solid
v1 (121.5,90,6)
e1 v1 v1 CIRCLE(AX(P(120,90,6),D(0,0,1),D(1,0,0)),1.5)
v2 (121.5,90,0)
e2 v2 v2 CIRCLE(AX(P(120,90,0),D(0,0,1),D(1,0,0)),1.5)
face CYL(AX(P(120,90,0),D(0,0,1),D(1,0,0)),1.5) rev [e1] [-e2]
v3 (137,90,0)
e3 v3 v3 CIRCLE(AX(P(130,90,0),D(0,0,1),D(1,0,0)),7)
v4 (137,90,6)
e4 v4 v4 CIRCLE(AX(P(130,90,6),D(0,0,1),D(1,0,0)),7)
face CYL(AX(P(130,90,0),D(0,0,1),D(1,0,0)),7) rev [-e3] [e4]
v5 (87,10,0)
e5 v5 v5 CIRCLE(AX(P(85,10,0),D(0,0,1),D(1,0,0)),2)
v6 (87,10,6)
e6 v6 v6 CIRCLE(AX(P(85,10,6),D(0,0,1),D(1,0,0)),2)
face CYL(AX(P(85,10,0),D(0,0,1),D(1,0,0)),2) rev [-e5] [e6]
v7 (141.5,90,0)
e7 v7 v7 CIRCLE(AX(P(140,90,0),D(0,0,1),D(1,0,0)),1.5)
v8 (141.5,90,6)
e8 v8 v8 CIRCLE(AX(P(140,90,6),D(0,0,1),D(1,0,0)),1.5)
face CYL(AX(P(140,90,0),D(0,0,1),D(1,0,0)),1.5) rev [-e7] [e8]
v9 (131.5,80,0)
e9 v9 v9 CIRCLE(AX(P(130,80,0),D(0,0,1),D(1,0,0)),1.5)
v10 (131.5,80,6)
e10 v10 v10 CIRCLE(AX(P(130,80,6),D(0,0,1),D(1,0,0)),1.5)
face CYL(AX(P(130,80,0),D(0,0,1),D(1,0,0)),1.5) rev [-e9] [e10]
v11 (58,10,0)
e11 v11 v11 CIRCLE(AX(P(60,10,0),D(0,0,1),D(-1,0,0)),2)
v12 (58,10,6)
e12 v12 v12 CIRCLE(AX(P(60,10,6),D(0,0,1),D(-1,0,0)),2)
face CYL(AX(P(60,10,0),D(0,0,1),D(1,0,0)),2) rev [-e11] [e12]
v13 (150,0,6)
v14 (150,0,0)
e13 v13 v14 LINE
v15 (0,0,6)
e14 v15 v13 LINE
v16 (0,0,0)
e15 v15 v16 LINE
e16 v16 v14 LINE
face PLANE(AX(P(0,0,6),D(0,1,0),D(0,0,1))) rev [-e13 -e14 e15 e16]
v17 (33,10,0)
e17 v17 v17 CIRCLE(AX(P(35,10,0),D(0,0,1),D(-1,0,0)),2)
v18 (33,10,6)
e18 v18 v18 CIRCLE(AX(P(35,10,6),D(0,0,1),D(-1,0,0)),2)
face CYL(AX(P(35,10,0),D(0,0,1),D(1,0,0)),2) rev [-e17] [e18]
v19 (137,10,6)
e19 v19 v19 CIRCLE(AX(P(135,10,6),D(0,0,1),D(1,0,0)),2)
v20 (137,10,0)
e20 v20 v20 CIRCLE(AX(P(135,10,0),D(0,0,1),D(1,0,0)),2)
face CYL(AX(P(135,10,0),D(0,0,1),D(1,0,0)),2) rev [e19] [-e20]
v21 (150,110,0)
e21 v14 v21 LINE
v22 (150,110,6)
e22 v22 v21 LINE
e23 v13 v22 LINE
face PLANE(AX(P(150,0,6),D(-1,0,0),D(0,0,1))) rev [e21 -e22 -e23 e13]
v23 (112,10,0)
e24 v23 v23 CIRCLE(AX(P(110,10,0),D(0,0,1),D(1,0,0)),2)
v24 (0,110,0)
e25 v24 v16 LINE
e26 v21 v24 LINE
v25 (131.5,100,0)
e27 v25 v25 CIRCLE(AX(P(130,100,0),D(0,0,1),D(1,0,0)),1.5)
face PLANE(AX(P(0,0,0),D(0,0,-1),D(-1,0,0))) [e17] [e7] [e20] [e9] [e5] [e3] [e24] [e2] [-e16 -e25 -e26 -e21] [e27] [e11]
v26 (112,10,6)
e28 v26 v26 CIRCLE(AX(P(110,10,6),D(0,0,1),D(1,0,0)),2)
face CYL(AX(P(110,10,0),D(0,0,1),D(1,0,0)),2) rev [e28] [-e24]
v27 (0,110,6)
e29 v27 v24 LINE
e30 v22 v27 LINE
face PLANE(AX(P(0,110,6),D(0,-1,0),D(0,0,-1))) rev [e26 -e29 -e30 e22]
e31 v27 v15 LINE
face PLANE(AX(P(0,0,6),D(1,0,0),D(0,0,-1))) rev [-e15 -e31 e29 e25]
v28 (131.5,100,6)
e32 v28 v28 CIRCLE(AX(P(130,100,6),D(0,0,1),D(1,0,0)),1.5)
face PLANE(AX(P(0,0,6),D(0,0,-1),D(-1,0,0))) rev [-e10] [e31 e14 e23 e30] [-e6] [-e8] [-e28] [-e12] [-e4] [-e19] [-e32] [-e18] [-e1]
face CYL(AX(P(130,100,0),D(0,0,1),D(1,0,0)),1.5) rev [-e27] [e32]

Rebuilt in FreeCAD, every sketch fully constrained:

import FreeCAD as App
import Part
import Sketcher
from FreeCAD import Vector
Q = App.Units.Quantity


def add_polygon(sketch, points):
    """Adds a closed chain of lines whose ends are joined by coincident constraints."""
    first, n = sketch.GeometryCount, len(points)
    for a, b in zip(points, points[1:] + points[:1]):
        sketch.addGeometry(Part.LineSegment(App.Vector(*a, 0), App.Vector(*b, 0)), False)
    for i in range(n):
        sketch.addConstraint(Sketcher.Constraint("Coincident", first + i, 2, first + (i + 1) % n, 1))

doc = App.newDocument("Part")
body = doc.addObject("PartDesign::Body", "Body")

# Sketch on XY plane
sketch1 = body.newObject("Sketcher::SketchObject", "Sketch")
sketch1.AttachmentSupport = (doc.getObject("XY_Plane"), [""])
sketch1.MapMode = "FlatFace"
add_polygon(sketch1, [(0, 110), (0, 0), (150, 0), (150, 110)])  # lines 0-3
sketch1.addConstraint([
    Sketcher.Constraint("Vertical", 0),
    Sketcher.Constraint("Horizontal", 1),
    Sketcher.Constraint("Vertical", 2),
    Sketcher.Constraint("Horizontal", 3),
    Sketcher.Constraint("Coincident", 0, 2, -1, 1),
    Sketcher.Constraint("DistanceX", 1, 1, 1, 2, Q("150 mm")),
    Sketcher.Constraint("DistanceY", 0, 2, 0, 1, Q("110 mm")),
])
pad1 = body.newObject("PartDesign::Pad", "Pad")
pad1.Profile = sketch1
pad1.Length = 6

# Sketch on XY plane
sketch2 = body.newObject("Sketcher::SketchObject", "Sketch001")
sketch2.AttachmentSupport = (doc.getObject("XY_Plane"), [""])
sketch2.MapMode = "FlatFace"
sketch2.AttachmentOffset = App.Placement(Vector(0, 0, 6), App.Rotation())
sketch2.addGeometry([
    Part.Circle(Vector(110, 10, 0), Vector(0, 0, 1), 2),  # 0
    Part.Circle(Vector(135, 10, 0), Vector(0, 0, 1), 2),  # 1
    Part.Circle(Vector(35, 10, 0), Vector(0, 0, 1), 2),  # 2
    Part.Circle(Vector(60, 10, 0), Vector(0, 0, 1), 2),  # 3
    Part.Circle(Vector(85, 10, 0), Vector(0, 0, 1), 2),  # 4
], False)
sketch2.addConstraint([
    Sketcher.Constraint("Equal", 0, 1),
    Sketcher.Constraint("Equal", 1, 2),
    Sketcher.Constraint("Equal", 2, 3),
    Sketcher.Constraint("Equal", 3, 4),
    Sketcher.Constraint("Horizontal", 0, 3, 1, 3),
    Sketcher.Constraint("Horizontal", 1, 3, 2, 3),
    Sketcher.Constraint("Horizontal", 2, 3, 3, 3),
    Sketcher.Constraint("Horizontal", 3, 3, 4, 3),
    Sketcher.Constraint("Diameter", 0, Q("4 mm")),
    Sketcher.Constraint("DistanceX", -1, 1, 0, 3, Q("110 mm")),
    Sketcher.Constraint("DistanceY", -1, 1, 0, 3, Q("10 mm")),
    Sketcher.Constraint("DistanceX", -1, 1, 1, 3, Q("135 mm")),
    Sketcher.Constraint("DistanceX", -1, 1, 2, 3, Q("35 mm")),
    Sketcher.Constraint("DistanceX", -1, 1, 3, 3, Q("60 mm")),
    Sketcher.Constraint("DistanceX", -1, 1, 4, 3, Q("85 mm")),
])
pocket1 = body.newObject("PartDesign::Pocket", "Pocket")
pocket1.Profile = sketch2
pocket1.Type = "ThroughAll"

# Sketch on XY plane
sketch3 = body.newObject("Sketcher::SketchObject", "Sketch002")
sketch3.AttachmentSupport = (doc.getObject("XY_Plane"), [""])
sketch3.MapMode = "FlatFace"
sketch3.AttachmentOffset = App.Placement(Vector(0, 0, 6), App.Rotation())
sketch3.addGeometry(Part.Circle(Vector(130, 90, 0), Vector(0, 0, 1), 7), False)
sketch3.addConstraint([
    Sketcher.Constraint("Diameter", 0, Q("14 mm")),
    Sketcher.Constraint("DistanceX", -1, 1, 0, 3, Q("130 mm")),
    Sketcher.Constraint("DistanceY", -1, 1, 0, 3, Q("90 mm")),
])
pocket2 = body.newObject("PartDesign::Pocket", "Pocket001")
pocket2.Profile = sketch3
pocket2.Type = "ThroughAll"

# Sketch on XY plane
sketch4 = body.newObject("Sketcher::SketchObject", "Sketch003")
sketch4.AttachmentSupport = (doc.getObject("XY_Plane"), [""])
sketch4.MapMode = "FlatFace"
sketch4.AttachmentOffset = App.Placement(Vector(0, 0, 6), App.Rotation())
sketch4.addGeometry([
    Part.Circle(Vector(130, 100, 0), Vector(0, 0, 1), 1.5),
    Part.Circle(Vector(140, 90, 0), Vector(0, 0, 1), 1.5),
    Part.Circle(Vector(130, 80, 0), Vector(0, 0, 1), 1.5),
    Part.Circle(Vector(120, 90, 0), Vector(0, 0, 1), 1.5),
], False)
sketch4.addConstraint([
    Sketcher.Constraint("Equal", 0, 1),
    Sketcher.Constraint("Equal", 1, 2),
    Sketcher.Constraint("Equal", 2, 3),
    Sketcher.Constraint("Horizontal", 1, 3, 3, 3),
    Sketcher.Constraint("Vertical", 0, 3, 2, 3),
    Sketcher.Constraint("Diameter", 0, Q("3 mm")),
    Sketcher.Constraint("DistanceX", -1, 1, 0, 3, Q("130 mm")),
    Sketcher.Constraint("DistanceY", -1, 1, 0, 3, Q("100 mm")),
    Sketcher.Constraint("DistanceX", -1, 1, 1, 3, Q("140 mm")),
    Sketcher.Constraint("DistanceY", -1, 1, 1, 3, Q("90 mm")),
    Sketcher.Constraint("DistanceY", -1, 1, 2, 3, Q("80 mm")),
    Sketcher.Constraint("DistanceX", -1, 1, 3, 3, Q("120 mm")),
])
pocket3 = body.newObject("PartDesign::Pocket", "Pocket002")
pocket3.Profile = sketch4
pocket3.Length = 6

doc.recompute()
